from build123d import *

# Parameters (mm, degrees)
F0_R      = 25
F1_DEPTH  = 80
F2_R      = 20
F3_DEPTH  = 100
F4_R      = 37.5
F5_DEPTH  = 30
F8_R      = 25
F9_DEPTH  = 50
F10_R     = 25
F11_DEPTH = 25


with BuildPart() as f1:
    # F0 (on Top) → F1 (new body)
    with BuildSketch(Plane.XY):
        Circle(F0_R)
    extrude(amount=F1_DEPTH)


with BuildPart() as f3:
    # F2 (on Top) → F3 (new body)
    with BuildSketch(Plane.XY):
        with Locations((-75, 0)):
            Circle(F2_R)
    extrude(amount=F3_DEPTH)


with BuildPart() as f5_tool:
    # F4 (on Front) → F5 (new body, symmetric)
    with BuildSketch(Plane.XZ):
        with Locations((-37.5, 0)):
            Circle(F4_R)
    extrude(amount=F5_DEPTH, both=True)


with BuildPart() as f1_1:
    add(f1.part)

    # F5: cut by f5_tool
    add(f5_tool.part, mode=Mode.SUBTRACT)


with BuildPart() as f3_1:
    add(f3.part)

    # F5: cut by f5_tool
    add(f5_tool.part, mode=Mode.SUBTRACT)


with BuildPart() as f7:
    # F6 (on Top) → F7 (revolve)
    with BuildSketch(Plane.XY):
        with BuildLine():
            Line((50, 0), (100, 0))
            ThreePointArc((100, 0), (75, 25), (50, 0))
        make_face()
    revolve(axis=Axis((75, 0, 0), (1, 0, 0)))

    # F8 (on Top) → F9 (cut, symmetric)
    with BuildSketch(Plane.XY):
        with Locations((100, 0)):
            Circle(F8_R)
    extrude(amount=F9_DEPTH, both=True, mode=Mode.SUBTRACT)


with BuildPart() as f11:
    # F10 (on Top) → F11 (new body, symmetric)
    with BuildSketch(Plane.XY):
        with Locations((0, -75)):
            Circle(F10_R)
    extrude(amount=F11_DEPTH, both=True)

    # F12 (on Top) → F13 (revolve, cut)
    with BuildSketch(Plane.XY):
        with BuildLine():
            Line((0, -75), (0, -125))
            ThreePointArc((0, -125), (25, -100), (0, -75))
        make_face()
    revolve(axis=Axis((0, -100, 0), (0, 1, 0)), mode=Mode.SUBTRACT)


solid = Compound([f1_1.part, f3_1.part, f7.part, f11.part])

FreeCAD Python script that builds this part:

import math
import FreeCAD as App
import Part
import Sketcher
from FreeCAD import Vector

doc = App.newDocument("Part")
body = doc.addObject("PartDesign::Body", "Body")

# Sketch on XY plane
sketch1 = doc.addObject("Sketcher::SketchObject", "Sketch")
body.addObject(sketch1)
sketch1.AttachmentSupport = (doc.XY_Plane, [""])
sketch1.MapMode = "FlatFace"
sketch1.addGeometry(Part.Circle(Vector(0, 0, 0), Vector(0, 0, 1), 25), False)
sketch1.addConstraint([
    Sketcher.Constraint("Coincident", 0, 3, -1, 1),
    Sketcher.Constraint("Diameter", 0, 50.0),
])
pad1 = doc.addObject("PartDesign::Pad", "Pad")
body.addObject(pad1)
pad1.Profile = sketch1
pad1.Length = 80
body2 = doc.addObject("PartDesign::Body", "Body001")

# Sketch on XY plane
sketch2 = doc.addObject("Sketcher::SketchObject", "Sketch001")
body2.addObject(sketch2)
sketch2.AttachmentSupport = (doc.getObject("XY_Plane001"), [""])
sketch2.MapMode = "FlatFace"
sketch2.addGeometry(Part.Circle(Vector(-75, 0, 0), Vector(0, 0, 1), 20), False)
sketch2.addConstraint([
    Sketcher.Constraint("PointOnObject", 0, 3, -1),
    Sketcher.Constraint("Diameter", 0, 40.0),
    Sketcher.Constraint("DistanceX", 0, 3, -1, 1, 75.0),
])
pad2 = doc.addObject("PartDesign::Pad", "Pad001")
body2.addObject(pad2)
pad2.Profile = sketch2
pad2.Length = 100
body3 = doc.addObject("PartDesign::Body", "Body002")

# Sketch on XZ plane
sketch3 = doc.addObject("Sketcher::SketchObject", "Sketch002")
body3.addObject(sketch3)
sketch3.AttachmentSupport = (doc.getObject("XZ_Plane002"), [""])
sketch3.MapMode = "FlatFace"
sketch3.addGeometry(Part.Circle(Vector(-38, 0, 0), Vector(0, 0, 1), 38), False)
sketch3.addConstraint([
    Sketcher.Constraint("PointOnObject", 0, 3, -1),
    Sketcher.Constraint("Diameter", 0, 75.0),
    Sketcher.Constraint("DistanceX", 0, 3, -1, 1, 37.5),
])
pad3 = doc.addObject("PartDesign::Pad", "Pad002")
body3.addObject(pad3)
pad3.Profile = sketch3
pad3.Length = 60
pad3.Midplane = True
doc.recompute()

body4 = doc.addObject("PartDesign::Body", "Body003")
body4.BaseFeature = body3
boolean = doc.addObject("PartDesign::Boolean", "Boolean")
body.addObject(boolean)
boolean.Type = "Cut"
boolean.addObjects([body4])
doc.recompute()

boolean2 = doc.addObject("PartDesign::Boolean", "Boolean001")
body2.addObject(boolean2)
boolean2.Type = "Cut"
boolean2.addObjects([body3])
body5 = doc.addObject("PartDesign::Body", "Body004")

# Sketch on XY plane
sketch4 = doc.addObject("Sketcher::SketchObject", "Sketch003")
body5.addObject(sketch4)
sketch4.AttachmentSupport = (doc.getObject("XY_Plane004"), [""])
sketch4.MapMode = "FlatFace"
sketch4.addGeometry([
    Part.LineSegment(Vector(50, 0, 0), Vector(100, 0, 0)),
    Part.ArcOfCircle(Part.Circle(Vector(75, 0, 0), Vector(0, 0, 1), 25), math.radians(0), math.radians(180)),
], False)
sketch4.addConstraint([
    Sketcher.Constraint("Coincident", 0, 1, 1, 2),
    Sketcher.Constraint("Coincident", 1, 1, 0, 2),
    Sketcher.Constraint("Horizontal", 0),
    Sketcher.Constraint("PointOnObject", 1, 3, -1),
    Sketcher.Constraint("PointOnObject", 0, 1, -1),
    Sketcher.Constraint("Radius", 1, 25.0),
    Sketcher.Constraint("DistanceX", -1, 1, 1, 3, 75.0),
])
revolution = doc.addObject("PartDesign::Revolution", "Revolution")
body5.addObject(revolution)
revolution.Profile = sketch4
revolution.ReferenceAxis = (sketch4, ["H_Axis"])
revolution.Angle = 360

# Sketch on XY plane
sketch5 = doc.addObject("Sketcher::SketchObject", "Sketch004")
body5.addObject(sketch5)
sketch5.AttachmentSupport = (doc.getObject("XY_Plane004"), [""])
sketch5.MapMode = "FlatFace"
sketch5.addGeometry(Part.Circle(Vector(100, 0, 0), Vector(0, 0, 1), 25), False)
sketch5.addConstraint([
    Sketcher.Constraint("PointOnObject", 0, 3, -1),
    Sketcher.Constraint("Diameter", 0, 50.0),
    Sketcher.Constraint("DistanceX", -1, 1, 0, 3, 100.0),
])
pocket1 = doc.addObject("PartDesign::Pocket", "Pocket")
body5.addObject(pocket1)
pocket1.Profile = sketch5
pocket1.Length = 100
pocket1.Midplane = True
body6 = doc.addObject("PartDesign::Body", "Body005")

# Sketch on XY plane
sketch6 = doc.addObject("Sketcher::SketchObject", "Sketch005")
body6.addObject(sketch6)
sketch6.AttachmentSupport = (doc.getObject("XY_Plane005"), [""])
sketch6.MapMode = "FlatFace"
sketch6.addGeometry(Part.Circle(Vector(0, -75, 0), Vector(0, 0, 1), 25), False)
sketch6.addConstraint([
    Sketcher.Constraint("PointOnObject", 0, 3, -2),
    Sketcher.Constraint("Diameter", 0, 50.0),
    Sketcher.Constraint("DistanceY", 0, 3, -1, 1, 75.0),
])
pad4 = doc.addObject("PartDesign::Pad", "Pad003")
body6.addObject(pad4)
pad4.Profile = sketch6
pad4.Length = 50
pad4.Midplane = True

# Sketch on XY plane
sketch7 = doc.addObject("Sketcher::SketchObject", "Sketch006")
body6.addObject(sketch7)
sketch7.AttachmentSupport = (doc.getObject("XY_Plane005"), [""])
sketch7.MapMode = "FlatFace"
sketch7.addGeometry([
    Part.LineSegment(Vector(0, -75, 0), Vector(0, -125, 0)),
    Part.ArcOfCircle(Part.Circle(Vector(0, -100, 0), Vector(0, 0, 1), 25), math.radians(-90), math.radians(90)),
], False)
sketch7.addConstraint([
    Sketcher.Constraint("Coincident", 0, 1, 1, 2),
    Sketcher.Constraint("Coincident", 1, 1, 0, 2),
    Sketcher.Constraint("Vertical", 0),
    Sketcher.Constraint("PointOnObject", 1, 3, -2),
    Sketcher.Constraint("PointOnObject", 0, 1, -2),
    Sketcher.Constraint("Radius", 1, 25.0),
    Sketcher.Constraint("DistanceY", 1, 3, -1, 1, 100.0),
])
groove = doc.addObject("PartDesign::Groove", "Groove")
body6.addObject(groove)
groove.Profile = sketch7
groove.ReferenceAxis = (sketch7, ["V_Axis"])
groove.Angle = 360

doc.recompute()
